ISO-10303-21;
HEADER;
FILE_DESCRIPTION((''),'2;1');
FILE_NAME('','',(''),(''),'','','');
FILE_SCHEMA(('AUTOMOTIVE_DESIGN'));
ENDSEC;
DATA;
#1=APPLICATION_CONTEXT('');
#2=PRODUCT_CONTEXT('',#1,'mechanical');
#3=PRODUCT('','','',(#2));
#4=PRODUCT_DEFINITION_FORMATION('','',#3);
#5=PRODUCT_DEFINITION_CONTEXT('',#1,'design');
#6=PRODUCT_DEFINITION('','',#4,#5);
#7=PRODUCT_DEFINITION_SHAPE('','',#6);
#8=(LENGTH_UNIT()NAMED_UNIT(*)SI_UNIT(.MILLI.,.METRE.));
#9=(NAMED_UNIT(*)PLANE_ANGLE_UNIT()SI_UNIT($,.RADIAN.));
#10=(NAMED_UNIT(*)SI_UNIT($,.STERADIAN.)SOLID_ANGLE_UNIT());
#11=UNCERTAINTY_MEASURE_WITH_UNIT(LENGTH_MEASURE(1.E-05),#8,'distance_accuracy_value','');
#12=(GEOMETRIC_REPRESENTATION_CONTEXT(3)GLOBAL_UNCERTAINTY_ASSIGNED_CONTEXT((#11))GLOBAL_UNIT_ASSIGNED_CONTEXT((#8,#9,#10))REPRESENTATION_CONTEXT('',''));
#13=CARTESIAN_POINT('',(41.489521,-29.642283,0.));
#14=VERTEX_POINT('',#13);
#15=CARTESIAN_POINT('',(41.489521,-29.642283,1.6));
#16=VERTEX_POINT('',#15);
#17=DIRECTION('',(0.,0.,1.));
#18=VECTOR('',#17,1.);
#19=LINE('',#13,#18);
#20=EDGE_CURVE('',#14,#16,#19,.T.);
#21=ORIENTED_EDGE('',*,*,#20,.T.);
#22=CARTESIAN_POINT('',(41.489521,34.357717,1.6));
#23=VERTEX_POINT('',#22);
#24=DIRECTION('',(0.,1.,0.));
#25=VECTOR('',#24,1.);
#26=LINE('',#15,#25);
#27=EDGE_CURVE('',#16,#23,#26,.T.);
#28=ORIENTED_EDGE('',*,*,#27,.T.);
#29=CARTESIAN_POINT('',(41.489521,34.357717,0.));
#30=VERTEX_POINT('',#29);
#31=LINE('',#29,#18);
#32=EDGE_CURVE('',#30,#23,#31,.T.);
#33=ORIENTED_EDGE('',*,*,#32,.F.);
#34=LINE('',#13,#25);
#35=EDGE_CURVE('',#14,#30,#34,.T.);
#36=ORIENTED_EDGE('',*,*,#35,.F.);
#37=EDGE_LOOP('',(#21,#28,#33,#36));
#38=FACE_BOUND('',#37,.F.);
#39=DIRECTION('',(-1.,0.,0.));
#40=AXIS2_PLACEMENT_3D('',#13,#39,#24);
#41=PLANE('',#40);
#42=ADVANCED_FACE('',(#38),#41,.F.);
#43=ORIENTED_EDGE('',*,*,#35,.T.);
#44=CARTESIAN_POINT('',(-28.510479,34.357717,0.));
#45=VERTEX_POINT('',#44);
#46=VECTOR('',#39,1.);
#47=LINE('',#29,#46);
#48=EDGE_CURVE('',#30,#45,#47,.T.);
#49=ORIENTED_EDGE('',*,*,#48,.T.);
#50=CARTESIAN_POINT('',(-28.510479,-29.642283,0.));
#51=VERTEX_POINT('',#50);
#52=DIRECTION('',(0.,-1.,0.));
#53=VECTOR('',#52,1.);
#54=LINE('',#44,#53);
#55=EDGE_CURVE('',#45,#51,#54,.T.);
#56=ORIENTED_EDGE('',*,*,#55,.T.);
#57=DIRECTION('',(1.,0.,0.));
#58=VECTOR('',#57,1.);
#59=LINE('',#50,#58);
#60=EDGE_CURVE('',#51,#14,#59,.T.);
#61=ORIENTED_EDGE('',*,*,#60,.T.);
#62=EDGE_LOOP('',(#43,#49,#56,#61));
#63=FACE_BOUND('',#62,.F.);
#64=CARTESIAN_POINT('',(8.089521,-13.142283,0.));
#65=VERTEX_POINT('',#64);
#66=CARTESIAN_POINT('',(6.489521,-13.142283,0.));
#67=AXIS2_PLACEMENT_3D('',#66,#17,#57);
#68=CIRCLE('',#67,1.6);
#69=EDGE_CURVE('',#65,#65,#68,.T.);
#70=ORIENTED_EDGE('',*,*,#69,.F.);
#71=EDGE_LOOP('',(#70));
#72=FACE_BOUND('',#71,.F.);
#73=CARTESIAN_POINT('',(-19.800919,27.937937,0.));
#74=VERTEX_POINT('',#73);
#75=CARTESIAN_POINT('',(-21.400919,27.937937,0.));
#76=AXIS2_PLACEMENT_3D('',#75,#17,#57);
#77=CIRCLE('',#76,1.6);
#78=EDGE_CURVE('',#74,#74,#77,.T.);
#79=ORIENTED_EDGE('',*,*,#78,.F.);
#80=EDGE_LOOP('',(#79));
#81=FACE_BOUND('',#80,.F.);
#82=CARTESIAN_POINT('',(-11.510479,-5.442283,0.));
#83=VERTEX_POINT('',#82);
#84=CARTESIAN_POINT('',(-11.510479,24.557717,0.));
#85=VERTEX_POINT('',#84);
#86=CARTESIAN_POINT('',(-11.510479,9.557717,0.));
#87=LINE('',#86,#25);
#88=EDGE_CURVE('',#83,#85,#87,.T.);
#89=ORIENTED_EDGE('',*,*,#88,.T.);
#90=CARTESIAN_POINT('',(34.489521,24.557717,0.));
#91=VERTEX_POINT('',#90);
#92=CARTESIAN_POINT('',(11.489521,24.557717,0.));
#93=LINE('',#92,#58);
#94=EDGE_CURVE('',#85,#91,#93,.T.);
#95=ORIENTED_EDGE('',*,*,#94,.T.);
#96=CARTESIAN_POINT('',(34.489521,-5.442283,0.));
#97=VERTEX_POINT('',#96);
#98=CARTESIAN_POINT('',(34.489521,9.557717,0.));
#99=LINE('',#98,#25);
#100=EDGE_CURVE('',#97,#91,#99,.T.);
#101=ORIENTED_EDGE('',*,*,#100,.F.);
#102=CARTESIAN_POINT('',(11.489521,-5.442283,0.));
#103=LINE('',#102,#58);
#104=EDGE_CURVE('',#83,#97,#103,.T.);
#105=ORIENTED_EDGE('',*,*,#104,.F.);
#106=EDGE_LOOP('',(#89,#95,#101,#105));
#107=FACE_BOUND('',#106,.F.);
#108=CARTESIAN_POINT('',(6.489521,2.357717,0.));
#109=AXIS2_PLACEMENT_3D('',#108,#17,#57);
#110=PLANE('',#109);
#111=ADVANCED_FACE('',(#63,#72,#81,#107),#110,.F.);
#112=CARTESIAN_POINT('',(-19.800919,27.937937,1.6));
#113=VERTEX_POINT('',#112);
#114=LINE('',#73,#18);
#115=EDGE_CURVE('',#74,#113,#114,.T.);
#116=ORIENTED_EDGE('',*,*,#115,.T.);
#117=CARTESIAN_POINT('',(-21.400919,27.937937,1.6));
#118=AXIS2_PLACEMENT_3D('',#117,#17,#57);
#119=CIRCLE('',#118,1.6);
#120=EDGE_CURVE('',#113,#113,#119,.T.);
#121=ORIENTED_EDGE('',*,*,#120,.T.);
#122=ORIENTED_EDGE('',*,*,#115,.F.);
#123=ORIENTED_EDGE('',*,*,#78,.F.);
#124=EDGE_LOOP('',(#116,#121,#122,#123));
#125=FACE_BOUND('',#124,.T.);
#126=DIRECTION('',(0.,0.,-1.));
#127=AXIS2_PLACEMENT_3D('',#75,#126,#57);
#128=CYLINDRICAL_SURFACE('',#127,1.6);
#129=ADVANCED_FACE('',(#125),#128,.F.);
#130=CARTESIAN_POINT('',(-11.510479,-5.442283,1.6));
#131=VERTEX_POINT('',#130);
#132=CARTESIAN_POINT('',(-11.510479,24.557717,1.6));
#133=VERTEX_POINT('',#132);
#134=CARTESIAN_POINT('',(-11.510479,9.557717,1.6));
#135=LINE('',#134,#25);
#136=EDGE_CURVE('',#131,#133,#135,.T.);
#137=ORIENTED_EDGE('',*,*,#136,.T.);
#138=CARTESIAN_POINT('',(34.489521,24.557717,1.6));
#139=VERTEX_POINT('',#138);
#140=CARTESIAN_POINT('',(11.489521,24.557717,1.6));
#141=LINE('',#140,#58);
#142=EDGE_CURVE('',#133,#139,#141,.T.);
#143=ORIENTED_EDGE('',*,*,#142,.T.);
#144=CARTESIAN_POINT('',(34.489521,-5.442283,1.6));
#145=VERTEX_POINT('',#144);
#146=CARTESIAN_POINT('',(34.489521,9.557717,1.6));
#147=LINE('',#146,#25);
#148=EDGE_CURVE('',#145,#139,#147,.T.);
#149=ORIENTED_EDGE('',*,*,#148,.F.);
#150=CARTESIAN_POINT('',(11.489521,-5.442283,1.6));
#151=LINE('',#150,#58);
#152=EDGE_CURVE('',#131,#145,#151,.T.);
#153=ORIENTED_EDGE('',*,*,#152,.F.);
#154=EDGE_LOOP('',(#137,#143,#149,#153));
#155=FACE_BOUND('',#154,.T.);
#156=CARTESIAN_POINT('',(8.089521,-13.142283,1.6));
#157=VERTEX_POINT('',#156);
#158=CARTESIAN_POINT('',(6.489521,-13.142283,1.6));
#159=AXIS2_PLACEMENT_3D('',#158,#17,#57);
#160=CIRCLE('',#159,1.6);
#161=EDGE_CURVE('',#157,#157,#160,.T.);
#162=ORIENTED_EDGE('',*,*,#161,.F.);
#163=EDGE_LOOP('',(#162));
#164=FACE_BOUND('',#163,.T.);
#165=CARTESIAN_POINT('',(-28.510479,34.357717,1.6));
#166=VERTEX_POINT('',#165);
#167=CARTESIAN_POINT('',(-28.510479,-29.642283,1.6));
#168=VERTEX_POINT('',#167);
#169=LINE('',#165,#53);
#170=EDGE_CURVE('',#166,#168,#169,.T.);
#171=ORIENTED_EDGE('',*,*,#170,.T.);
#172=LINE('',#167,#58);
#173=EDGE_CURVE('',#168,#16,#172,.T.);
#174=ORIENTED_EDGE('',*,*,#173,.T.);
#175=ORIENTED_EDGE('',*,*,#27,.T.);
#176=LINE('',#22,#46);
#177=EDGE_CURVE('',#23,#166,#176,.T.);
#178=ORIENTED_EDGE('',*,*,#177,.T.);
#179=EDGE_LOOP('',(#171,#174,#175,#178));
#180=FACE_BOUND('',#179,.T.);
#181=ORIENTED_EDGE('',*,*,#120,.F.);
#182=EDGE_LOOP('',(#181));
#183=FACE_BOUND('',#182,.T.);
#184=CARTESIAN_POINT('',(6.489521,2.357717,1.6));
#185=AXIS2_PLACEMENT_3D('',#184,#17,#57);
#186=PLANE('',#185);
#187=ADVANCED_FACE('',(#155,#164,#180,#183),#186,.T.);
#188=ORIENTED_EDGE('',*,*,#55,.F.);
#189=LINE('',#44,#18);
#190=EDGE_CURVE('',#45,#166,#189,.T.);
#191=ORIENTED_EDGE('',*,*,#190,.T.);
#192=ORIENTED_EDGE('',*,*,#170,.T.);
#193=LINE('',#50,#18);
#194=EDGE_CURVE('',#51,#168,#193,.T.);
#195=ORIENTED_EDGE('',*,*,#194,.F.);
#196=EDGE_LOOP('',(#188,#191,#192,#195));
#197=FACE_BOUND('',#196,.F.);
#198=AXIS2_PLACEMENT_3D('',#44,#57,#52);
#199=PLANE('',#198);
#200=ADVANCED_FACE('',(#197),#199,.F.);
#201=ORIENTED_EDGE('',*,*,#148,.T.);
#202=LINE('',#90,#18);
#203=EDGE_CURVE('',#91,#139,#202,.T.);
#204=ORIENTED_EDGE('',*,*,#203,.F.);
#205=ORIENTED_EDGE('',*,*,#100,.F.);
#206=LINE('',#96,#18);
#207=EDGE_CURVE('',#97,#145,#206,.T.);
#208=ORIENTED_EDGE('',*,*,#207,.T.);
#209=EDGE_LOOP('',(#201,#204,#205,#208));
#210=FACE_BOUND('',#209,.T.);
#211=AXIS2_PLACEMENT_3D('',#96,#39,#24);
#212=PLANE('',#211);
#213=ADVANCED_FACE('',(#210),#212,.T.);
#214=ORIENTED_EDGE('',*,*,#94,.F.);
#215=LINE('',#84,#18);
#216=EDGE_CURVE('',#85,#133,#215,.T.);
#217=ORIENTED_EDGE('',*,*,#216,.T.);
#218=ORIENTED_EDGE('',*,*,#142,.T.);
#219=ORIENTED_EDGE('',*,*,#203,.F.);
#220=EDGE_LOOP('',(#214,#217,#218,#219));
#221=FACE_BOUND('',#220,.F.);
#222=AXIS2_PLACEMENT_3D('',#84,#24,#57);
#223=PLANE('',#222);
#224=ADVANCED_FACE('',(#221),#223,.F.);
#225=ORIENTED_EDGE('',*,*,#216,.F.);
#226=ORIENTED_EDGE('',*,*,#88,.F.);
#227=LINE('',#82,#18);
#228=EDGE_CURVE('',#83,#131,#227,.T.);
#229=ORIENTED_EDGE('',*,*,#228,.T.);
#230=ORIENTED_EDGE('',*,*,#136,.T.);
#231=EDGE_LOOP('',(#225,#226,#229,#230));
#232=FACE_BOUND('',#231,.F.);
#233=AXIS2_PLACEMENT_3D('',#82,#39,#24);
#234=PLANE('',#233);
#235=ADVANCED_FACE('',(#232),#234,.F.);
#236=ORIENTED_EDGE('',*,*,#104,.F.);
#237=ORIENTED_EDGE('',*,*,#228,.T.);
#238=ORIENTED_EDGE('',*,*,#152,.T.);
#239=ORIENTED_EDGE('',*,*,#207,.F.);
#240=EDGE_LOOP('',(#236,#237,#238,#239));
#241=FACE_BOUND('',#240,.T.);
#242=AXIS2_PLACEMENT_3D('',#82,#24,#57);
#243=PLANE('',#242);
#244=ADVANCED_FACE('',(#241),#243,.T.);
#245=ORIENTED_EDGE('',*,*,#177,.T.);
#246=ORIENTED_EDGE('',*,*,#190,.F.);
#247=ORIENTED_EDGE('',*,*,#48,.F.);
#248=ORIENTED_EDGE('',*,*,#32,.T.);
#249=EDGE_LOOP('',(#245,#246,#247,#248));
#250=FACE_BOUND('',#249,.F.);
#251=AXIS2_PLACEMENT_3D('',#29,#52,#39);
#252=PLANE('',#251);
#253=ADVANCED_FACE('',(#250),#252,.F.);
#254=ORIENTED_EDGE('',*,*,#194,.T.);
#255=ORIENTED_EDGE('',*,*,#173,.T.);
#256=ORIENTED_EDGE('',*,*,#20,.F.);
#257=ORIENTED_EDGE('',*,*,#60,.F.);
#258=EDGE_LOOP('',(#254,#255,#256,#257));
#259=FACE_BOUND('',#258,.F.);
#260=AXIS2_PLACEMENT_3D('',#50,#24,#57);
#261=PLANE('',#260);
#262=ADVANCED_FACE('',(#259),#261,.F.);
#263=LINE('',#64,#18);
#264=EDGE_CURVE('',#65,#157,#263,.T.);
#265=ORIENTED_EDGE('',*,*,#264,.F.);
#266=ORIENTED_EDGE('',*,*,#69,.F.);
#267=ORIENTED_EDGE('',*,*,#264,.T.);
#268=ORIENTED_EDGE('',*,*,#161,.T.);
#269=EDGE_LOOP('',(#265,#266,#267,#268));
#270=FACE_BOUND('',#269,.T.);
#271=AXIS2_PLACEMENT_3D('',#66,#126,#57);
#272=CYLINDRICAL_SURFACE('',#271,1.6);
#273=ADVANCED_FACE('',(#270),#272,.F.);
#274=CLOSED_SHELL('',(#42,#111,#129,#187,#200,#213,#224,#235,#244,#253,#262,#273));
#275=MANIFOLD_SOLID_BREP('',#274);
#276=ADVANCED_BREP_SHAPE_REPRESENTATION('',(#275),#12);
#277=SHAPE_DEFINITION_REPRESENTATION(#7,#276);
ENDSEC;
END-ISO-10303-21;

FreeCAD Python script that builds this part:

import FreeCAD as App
import Part
import Sketcher

V = App.Vector
Q = App.Units.Quantity


def add_polygon(sketch, points):
    """Adds a closed chain of lines whose ends are joined by coincident constraints."""
    first, n = sketch.GeometryCount, len(points)
    for a, b in zip(points, points[1:] + points[:1]):
        sketch.addGeometry(Part.LineSegment(App.Vector(*a, 0), App.Vector(*b, 0)), False)
    for i in range(n):
        sketch.addConstraint(Sketcher.Constraint("Coincident", first + i, 2, first + (i + 1) % n, 1))

doc = App.newDocument("Part")
body = doc.addObject("PartDesign::Body", "Body")

# Sketch on XY plane
sketch1 = body.newObject("Sketcher::SketchObject", "Sketch")
sketch1.AttachmentSupport = (doc.getObject("XY_Plane"), [""])
sketch1.MapMode = "FlatFace"
add_polygon(sketch1, [(41.5, 34.4), (-28.5, 34.4), (-28.5, -29.6), (41.5, -29.6)])  # lines 0-3
sketch1.addGeometry(Part.Circle(V(6.5, -13.1, 0), V(0, 0, 1), 1.6), False)  # 4
sketch1.addGeometry(Part.Circle(V(-21.4, 27.9, 0), V(0, 0, 1), 1.6), False)  # 5
add_polygon(sketch1, [(34.5, -5.4), (-11.5, -5.4), (-11.5, 24.6), (34.5, 24.6)])  # lines 6-9
sketch1.addConstraint(Sketcher.Constraint("Horizontal", 0))
sketch1.addConstraint(Sketcher.Constraint("Vertical", 1))
sketch1.addConstraint(Sketcher.Constraint("Horizontal", 2))
sketch1.addConstraint(Sketcher.Constraint("Vertical", 3))
sketch1.addConstraint(Sketcher.Constraint("Horizontal", 6))
sketch1.addConstraint(Sketcher.Constraint("Vertical", 7))
sketch1.addConstraint(Sketcher.Constraint("Horizontal", 8))
sketch1.addConstraint(Sketcher.Constraint("Vertical", 9))
sketch1.addConstraint(Sketcher.Constraint("Equal", 4, 5))
sketch1.addConstraint(Sketcher.Constraint("Diameter", 4, Q("3.2 mm")))
sketch1.addConstraint(Sketcher.Constraint("DistanceX", 0, 2, 0, 1, Q("70 mm")))
sketch1.addConstraint(Sketcher.Constraint("DistanceX", 6, 2, 6, 1, Q("46 mm")))
sketch1.addConstraint(Sketcher.Constraint("DistanceY", 1, 2, 1, 1, Q("64 mm")))
sketch1.addConstraint(Sketcher.Constraint("DistanceY", 7, 1, 7, 2, Q("30 mm")))
sketch1.addConstraint(Sketcher.Constraint("DistanceX", 0, 2, 4, 3, Q("35 mm")))
sketch1.addConstraint(Sketcher.Constraint("DistanceX", 6, 2, 4, 3, Q("18 mm")))
sketch1.addConstraint(Sketcher.Constraint("DistanceY", 4, 3, 0, 2, Q("47.5 mm")))
sketch1.addConstraint(Sketcher.Constraint("DistanceY", 4, 3, 6, 2, Q("7.7 mm")))
sketch1.addConstraint(Sketcher.Constraint("DistanceX", -1, 1, 4, 3, Q("6.489521 mm")))
sketch1.addConstraint(Sketcher.Constraint("DistanceX", 5, 3, -1, 1, Q("21.400919 mm")))
sketch1.addConstraint(Sketcher.Constraint("DistanceY", 4, 3, 5, 3, Q("41.08022 mm")))
sketch1.addConstraint(Sketcher.Constraint("DistanceY", 4, 3, -1, 1, Q("13.142283 mm")))
pad1 = body.newObject("PartDesign::Pad", "Pad")
pad1.Profile = sketch1
pad1.Length = 1.6

doc.recompute()
